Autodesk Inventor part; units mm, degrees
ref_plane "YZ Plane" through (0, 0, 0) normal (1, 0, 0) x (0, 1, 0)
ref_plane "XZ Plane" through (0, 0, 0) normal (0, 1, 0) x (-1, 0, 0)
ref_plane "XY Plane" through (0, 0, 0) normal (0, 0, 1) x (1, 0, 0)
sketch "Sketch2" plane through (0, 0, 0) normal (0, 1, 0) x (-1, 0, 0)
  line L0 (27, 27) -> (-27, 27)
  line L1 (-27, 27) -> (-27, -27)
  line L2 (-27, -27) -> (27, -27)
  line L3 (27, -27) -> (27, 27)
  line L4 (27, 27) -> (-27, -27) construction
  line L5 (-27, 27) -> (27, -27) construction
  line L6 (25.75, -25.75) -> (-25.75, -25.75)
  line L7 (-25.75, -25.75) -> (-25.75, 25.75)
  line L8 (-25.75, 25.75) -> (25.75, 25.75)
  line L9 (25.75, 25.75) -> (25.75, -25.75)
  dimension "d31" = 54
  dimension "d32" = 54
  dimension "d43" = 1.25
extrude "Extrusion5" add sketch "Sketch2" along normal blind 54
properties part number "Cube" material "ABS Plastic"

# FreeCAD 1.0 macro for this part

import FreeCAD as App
import Part
import Sketcher
from FreeCAD import Vector
Q = App.Units.Quantity


def add_polygon(sketch, points):
    """Adds a closed chain of lines whose ends are joined by coincident constraints."""
    first, n = sketch.GeometryCount, len(points)
    for a, b in zip(points, points[1:] + points[:1]):
        sketch.addGeometry(Part.LineSegment(App.Vector(*a, 0), App.Vector(*b, 0)), False)
    for i in range(n):
        sketch.addConstraint(Sketcher.Constraint("Coincident", first + i, 2, first + (i + 1) % n, 1))

doc = App.newDocument("Part")
params = doc.addObject("Spreadsheet::Sheet", "Params")
for row, (alias, value) in enumerate([
    ("sketch1_width", "54 mm"),
    ("pad1_length", "54 mm"),
], start=1):
    params.set(f"A{row}", alias)
    params.set(f"B{row}", "=" + value)
    params.setAlias(f"B{row}", alias)

body = doc.addObject("PartDesign::Body", "Body")

# Sketch on XZ plane
sketch1 = doc.addObject("Sketcher::SketchObject", "Sketch")
body.addObject(sketch1)
sketch1.AttachmentSupport = (doc.XZ_Plane, [""])
sketch1.MapMode = "FlatFace"
add_polygon(sketch1, [(-27, -27), (-27, 27), (27, 27), (27, -27)])  # lines 0-3
add_polygon(sketch1, [(-25.75, 25.75), (-25.75, -25.75), (25.75, -25.75), (25.75, 25.75)])  # lines 4-7
sketch1.addConstraint([
    Sketcher.Constraint("Vertical", 0),
    Sketcher.Constraint("Horizontal", 1),
    Sketcher.Constraint("Vertical", 2),
    Sketcher.Constraint("Horizontal", 3),
    Sketcher.Constraint("Vertical", 4),
    Sketcher.Constraint("Horizontal", 5),
    Sketcher.Constraint("Vertical", 6),
    Sketcher.Constraint("Horizontal", 7),
    Sketcher.Constraint("Symmetric", 0, 2, 2, 2, -1, 1),
    Sketcher.Constraint("Symmetric", 4, 2, 6, 2, -1, 1),
    Sketcher.Constraint("Equal", 3, 0),
    Sketcher.Constraint("Equal", 7, 4),
    Sketcher.Constraint("DistanceX", 1, 1, 1, 2, Q("54 mm")),
    Sketcher.Constraint("DistanceX", 3, 2, 4, 2, Q("1.25 mm")),
])
sketch1.setExpression("Constraints[20]", "Params.sketch1_width")
pad1 = doc.addObject("PartDesign::Pad", "Pad")
body.addObject(pad1)
pad1.Profile = sketch1
pad1.setExpression("Length", "Params.pad1_length")
pad1.Reversed = True

doc.recompute()
